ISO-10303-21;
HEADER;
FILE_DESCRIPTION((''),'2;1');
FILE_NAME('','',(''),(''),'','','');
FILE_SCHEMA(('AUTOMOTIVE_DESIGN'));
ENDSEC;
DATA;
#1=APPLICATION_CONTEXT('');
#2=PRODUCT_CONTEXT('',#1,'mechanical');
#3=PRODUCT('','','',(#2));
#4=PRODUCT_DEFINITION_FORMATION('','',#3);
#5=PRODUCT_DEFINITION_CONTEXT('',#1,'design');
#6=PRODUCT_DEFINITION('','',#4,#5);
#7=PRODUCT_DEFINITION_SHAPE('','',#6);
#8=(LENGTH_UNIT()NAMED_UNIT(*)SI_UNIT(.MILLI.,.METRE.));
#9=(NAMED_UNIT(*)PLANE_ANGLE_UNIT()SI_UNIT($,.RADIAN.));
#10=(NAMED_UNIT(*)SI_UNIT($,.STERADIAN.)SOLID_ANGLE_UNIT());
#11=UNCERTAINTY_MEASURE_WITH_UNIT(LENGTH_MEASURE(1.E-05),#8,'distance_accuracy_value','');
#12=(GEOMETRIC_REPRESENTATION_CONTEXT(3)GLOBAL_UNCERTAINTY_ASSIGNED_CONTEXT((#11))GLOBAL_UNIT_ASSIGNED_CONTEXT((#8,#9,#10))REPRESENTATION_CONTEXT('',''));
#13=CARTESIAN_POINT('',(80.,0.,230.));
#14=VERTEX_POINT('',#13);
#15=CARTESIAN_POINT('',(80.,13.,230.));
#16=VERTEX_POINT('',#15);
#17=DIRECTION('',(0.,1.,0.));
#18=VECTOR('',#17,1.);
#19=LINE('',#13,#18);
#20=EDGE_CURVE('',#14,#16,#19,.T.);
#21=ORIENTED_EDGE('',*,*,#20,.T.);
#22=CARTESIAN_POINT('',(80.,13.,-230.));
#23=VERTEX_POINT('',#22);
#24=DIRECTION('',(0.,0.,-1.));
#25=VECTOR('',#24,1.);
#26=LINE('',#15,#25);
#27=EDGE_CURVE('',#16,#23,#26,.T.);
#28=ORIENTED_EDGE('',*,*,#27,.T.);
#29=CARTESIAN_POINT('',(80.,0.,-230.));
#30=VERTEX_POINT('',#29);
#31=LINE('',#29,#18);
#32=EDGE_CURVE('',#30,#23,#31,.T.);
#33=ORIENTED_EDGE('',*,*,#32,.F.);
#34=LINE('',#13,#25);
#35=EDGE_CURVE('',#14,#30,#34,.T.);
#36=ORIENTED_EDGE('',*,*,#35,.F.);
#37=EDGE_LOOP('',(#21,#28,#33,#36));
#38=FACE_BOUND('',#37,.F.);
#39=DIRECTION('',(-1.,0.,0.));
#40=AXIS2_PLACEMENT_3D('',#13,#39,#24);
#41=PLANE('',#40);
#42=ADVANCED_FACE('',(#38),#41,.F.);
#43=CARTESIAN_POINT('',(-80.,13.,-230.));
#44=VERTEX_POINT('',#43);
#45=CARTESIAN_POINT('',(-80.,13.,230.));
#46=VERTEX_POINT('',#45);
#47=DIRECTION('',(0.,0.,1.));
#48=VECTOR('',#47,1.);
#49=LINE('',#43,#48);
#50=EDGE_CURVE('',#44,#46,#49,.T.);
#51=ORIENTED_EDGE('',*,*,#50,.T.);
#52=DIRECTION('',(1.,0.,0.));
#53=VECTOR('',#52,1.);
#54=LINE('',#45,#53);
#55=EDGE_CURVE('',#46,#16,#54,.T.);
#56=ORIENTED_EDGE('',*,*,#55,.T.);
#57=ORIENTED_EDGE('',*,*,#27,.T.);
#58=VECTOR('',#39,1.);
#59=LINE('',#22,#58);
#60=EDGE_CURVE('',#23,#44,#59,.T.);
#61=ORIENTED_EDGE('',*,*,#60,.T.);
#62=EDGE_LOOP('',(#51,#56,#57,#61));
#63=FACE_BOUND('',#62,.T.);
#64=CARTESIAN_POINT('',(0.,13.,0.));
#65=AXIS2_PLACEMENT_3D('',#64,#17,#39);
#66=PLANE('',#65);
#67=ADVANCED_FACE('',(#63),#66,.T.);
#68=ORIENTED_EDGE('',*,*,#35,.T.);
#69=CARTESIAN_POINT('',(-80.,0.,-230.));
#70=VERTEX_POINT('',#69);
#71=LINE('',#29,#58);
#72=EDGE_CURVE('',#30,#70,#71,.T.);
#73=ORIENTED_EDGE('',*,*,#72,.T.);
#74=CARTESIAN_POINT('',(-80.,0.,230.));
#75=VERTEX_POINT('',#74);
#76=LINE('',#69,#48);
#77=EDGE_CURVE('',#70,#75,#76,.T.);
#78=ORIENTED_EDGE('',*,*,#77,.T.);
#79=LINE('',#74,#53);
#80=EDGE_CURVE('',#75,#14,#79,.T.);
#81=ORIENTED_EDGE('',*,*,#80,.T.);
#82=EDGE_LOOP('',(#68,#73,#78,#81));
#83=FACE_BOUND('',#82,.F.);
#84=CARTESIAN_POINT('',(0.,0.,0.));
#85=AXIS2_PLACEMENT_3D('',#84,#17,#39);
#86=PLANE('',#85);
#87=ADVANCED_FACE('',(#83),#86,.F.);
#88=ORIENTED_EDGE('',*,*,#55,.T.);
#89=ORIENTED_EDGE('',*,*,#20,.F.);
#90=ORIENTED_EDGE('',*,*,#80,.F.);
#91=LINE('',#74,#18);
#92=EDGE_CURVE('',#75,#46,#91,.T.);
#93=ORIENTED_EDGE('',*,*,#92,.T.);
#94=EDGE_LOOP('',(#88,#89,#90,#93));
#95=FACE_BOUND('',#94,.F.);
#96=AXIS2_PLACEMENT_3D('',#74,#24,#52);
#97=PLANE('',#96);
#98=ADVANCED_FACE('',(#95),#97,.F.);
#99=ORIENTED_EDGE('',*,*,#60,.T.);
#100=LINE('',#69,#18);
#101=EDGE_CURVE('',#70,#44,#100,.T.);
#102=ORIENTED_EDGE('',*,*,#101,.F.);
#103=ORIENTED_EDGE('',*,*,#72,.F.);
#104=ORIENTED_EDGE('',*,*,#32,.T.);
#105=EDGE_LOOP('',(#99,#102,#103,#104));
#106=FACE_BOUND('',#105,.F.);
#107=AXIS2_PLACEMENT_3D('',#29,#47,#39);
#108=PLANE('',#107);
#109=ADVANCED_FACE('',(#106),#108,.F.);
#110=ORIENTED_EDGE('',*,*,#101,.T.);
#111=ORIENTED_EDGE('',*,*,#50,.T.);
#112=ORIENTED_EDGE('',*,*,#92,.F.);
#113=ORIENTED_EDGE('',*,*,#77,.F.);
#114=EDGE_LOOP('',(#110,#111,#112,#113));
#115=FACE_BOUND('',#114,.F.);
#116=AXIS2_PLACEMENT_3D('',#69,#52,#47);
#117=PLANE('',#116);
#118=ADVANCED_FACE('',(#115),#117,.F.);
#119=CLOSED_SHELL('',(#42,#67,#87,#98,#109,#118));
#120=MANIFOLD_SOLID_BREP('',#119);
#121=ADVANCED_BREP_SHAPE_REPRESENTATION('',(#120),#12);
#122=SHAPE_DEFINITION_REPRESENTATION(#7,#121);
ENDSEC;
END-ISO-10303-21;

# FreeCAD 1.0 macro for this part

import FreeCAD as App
import Part
import Sketcher
from FreeCAD import Vector

doc = App.newDocument("Part")
body = doc.addObject("PartDesign::Body", "Body")

# Sketch on XZ plane
sketch1 = body.newObject("Sketcher::SketchObject", "Sketch")
sketch1.AttachmentSupport = (doc.getObject("XZ_Plane"), [""])
sketch1.MapMode = "FlatFace"
sketch1.addGeometry([
    Part.LineSegment(Vector(-80, -230, 0), Vector(-80, 230, 0)),
    Part.LineSegment(Vector(-80, 230, 0), Vector(80, 230, 0)),
    Part.LineSegment(Vector(80, 230, 0), Vector(80, -230, 0)),
    Part.LineSegment(Vector(80, -230, 0), Vector(-80, -230, 0)),
], False)
sketch1.addConstraint([
    Sketcher.Constraint("Coincident", 0, 2, 1, 1),
    Sketcher.Constraint("Coincident", 1, 2, 2, 1),
    Sketcher.Constraint("Coincident", 2, 2, 3, 1),
    Sketcher.Constraint("Coincident", 3, 2, 0, 1),
    Sketcher.Constraint("Vertical", 0),
    Sketcher.Constraint("Horizontal", 1),
    Sketcher.Constraint("Vertical", 2),
    Sketcher.Constraint("Horizontal", 3),
    Sketcher.Constraint("Symmetric", 0, 2, 2, 2, -1, 1),
    Sketcher.Constraint("DistanceX", 1, 1, 1, 2, 160.0),
    Sketcher.Constraint("DistanceY", 0, 1, 0, 2, 460.0),
])
pad1 = body.newObject("PartDesign::Pad", "Pad")
pad1.Profile = sketch1
pad1.Length = 13
pad1.Reversed = True

doc.recompute()
